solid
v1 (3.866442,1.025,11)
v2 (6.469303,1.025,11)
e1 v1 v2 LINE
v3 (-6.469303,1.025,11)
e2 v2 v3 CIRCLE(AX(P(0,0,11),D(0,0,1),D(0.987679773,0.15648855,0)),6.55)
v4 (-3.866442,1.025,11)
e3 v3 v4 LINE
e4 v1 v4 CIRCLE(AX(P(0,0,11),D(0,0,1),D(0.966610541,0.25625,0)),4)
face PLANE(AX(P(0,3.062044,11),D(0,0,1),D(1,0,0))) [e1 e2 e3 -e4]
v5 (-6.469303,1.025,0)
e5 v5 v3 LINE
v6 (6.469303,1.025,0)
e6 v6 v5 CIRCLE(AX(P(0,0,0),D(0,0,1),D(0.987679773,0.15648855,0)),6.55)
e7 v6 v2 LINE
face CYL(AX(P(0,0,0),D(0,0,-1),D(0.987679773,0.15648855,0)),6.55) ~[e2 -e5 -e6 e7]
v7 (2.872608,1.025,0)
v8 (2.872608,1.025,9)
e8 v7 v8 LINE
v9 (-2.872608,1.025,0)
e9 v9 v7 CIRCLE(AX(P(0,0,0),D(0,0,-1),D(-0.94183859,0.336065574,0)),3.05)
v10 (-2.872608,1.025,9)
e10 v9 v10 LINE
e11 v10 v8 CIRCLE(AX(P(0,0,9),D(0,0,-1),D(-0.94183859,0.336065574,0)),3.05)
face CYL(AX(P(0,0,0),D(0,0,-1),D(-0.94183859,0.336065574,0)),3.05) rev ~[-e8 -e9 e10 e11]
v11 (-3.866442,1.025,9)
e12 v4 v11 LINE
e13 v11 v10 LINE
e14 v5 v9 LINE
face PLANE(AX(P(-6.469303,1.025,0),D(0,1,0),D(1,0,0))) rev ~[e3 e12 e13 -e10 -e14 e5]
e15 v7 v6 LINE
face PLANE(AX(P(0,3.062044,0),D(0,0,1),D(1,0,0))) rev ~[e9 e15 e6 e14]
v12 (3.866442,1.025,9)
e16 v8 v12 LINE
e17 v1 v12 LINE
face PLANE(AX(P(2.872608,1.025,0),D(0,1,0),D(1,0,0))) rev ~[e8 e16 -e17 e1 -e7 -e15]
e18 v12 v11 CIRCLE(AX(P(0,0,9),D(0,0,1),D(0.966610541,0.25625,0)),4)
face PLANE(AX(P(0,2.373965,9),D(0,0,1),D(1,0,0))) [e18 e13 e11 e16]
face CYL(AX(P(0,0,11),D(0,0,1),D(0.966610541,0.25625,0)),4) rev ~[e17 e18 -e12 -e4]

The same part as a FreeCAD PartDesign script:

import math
import FreeCAD as App
import Part
import Sketcher
Q = App.Units.Quantity

doc = App.newDocument("Part")
body = doc.addObject("PartDesign::Body", "Body")

# Sketch on XY plane
sketch1 = body.newObject("Sketcher::SketchObject", "Sketch")
sketch1.AttachmentSupport = (doc.getObject("XY_Plane"), [""])
sketch1.MapMode = "FlatFace"
sketch1.addGeometry(Part.ArcOfCircle(Part.Circle(App.Vector(0, 0, 0), App.Vector(0, 0, 1), 3), math.radians(20), math.radians(160)), False)
sketch1.addGeometry(Part.LineSegment(App.Vector(2.9, 1, 0), App.Vector(6.5, 1, 0)), False)
sketch1.addGeometry(Part.ArcOfCircle(Part.Circle(App.Vector(0, 0, 0), App.Vector(0, 0, 1), 6.5), math.radians(9), math.radians(171)), False)
sketch1.addGeometry(Part.LineSegment(App.Vector(-6.5, 1, 0), App.Vector(-2.9, 1, 0)), False)
sketch1.addConstraint(Sketcher.Constraint("Coincident", 0, 1, 1, 1))
sketch1.addConstraint(Sketcher.Constraint("Coincident", 1, 2, 2, 1))
sketch1.addConstraint(Sketcher.Constraint("Coincident", 2, 2, 3, 1))
sketch1.addConstraint(Sketcher.Constraint("Coincident", 3, 2, 0, 2))
sketch1.addConstraint(Sketcher.Constraint("Horizontal", 1))
sketch1.addConstraint(Sketcher.Constraint("Horizontal", 3))
sketch1.addConstraint(Sketcher.Constraint("Coincident", 0, 3, -1, 1))
sketch1.addConstraint(Sketcher.Constraint("Coincident", 2, 3, -1, 1))
sketch1.addConstraint(Sketcher.Constraint("Horizontal", 1, 2, 2, 2))
sketch1.addConstraint(Sketcher.Constraint("Radius", 0, Q("3.05 mm")))
sketch1.addConstraint(Sketcher.Constraint("Radius", 2, Q("6.55 mm")))
sketch1.addConstraint(Sketcher.Constraint("DistanceY", -1, 1, 0, 1, Q("1.025 mm")))
pad1 = body.newObject("PartDesign::Pad", "Pad")
pad1.Profile = sketch1
pad1.Length = 11

# Sketch on XY plane
sketch2 = body.newObject("Sketcher::SketchObject", "Sketch001")
sketch2.AttachmentSupport = (doc.getObject("XY_Plane"), [""])
sketch2.MapMode = "FlatFace"
sketch2.AttachmentOffset = App.Placement(App.Vector(0, 0, 11), App.Rotation())
sketch2.addGeometry(Part.LineSegment(App.Vector(2.9, 1, 0), App.Vector(3.9, 1, 0)), False)
sketch2.addGeometry(Part.ArcOfCircle(Part.Circle(App.Vector(0, 0, 0), App.Vector(0, 0, 1), 4), math.radians(15), math.radians(165)), False)
sketch2.addGeometry(Part.LineSegment(App.Vector(-3.9, 1, 0), App.Vector(-2.9, 1, 0)), False)
sketch2.addGeometry(Part.ArcOfCircle(Part.Circle(App.Vector(0, 0, 0), App.Vector(0, 0, 1), 3), math.radians(20), math.radians(160)), False)
sketch2.addConstraint(Sketcher.Constraint("Coincident", 0, 2, 1, 1))
sketch2.addConstraint(Sketcher.Constraint("Coincident", 1, 2, 2, 1))
sketch2.addConstraint(Sketcher.Constraint("Coincident", 2, 2, 3, 2))
sketch2.addConstraint(Sketcher.Constraint("Coincident", 3, 1, 0, 1))
sketch2.addConstraint(Sketcher.Constraint("Horizontal", 0))
sketch2.addConstraint(Sketcher.Constraint("Horizontal", 2))
sketch2.addConstraint(Sketcher.Constraint("Coincident", 1, 3, -1, 1))
sketch2.addConstraint(Sketcher.Constraint("Coincident", 3, 3, -1, 1))
sketch2.addConstraint(Sketcher.Constraint("Horizontal", 0, 2, 1, 2))
sketch2.addConstraint(Sketcher.Constraint("Radius", 1, Q("4 mm")))
sketch2.addConstraint(Sketcher.Constraint("Radius", 3, Q("3.05 mm")))
sketch2.addConstraint(Sketcher.Constraint("DistanceY", -1, 1, 0, 2, Q("1.025 mm")))
pocket1 = body.newObject("PartDesign::Pocket", "Pocket")
pocket1.Profile = sketch2
pocket1.Length = 2

doc.recompute()
